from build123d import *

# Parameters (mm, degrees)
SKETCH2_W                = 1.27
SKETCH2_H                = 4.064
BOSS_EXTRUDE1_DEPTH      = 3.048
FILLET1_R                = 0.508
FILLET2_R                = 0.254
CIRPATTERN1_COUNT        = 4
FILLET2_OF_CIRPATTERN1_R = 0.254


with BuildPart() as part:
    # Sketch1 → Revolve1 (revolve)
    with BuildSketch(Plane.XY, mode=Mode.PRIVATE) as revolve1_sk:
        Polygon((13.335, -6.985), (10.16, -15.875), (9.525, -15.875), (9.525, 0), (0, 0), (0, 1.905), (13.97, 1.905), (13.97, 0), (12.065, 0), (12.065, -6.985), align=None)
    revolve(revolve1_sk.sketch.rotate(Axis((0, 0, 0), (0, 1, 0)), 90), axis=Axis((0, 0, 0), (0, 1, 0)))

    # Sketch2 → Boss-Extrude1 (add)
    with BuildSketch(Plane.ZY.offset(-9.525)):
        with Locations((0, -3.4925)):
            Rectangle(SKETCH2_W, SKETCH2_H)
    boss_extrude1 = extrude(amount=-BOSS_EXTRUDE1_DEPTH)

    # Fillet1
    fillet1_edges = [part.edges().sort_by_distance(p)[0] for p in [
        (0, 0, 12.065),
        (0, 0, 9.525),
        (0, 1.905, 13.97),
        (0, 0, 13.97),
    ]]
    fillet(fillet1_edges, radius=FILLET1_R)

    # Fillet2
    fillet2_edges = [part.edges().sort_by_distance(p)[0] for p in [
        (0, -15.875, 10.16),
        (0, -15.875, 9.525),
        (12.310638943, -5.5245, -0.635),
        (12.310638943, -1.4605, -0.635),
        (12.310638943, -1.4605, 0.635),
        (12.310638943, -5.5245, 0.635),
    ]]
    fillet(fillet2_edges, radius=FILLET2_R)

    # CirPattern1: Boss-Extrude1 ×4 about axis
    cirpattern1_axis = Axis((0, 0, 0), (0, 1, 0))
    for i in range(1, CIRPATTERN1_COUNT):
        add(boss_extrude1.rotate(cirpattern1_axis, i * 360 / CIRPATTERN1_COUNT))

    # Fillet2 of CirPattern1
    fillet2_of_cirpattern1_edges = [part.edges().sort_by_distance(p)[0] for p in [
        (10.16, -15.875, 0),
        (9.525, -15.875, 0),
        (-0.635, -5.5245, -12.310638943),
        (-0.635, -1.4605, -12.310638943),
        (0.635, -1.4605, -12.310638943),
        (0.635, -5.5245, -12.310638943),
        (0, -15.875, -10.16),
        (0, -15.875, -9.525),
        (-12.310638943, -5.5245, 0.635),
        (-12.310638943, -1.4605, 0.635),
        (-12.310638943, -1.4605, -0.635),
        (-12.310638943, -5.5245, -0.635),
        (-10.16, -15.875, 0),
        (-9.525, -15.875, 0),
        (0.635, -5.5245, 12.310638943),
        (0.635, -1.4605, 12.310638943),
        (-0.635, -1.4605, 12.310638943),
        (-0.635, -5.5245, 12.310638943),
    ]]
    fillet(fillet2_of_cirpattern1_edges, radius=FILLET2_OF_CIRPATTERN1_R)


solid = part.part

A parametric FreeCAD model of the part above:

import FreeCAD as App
import Part
import Sketcher

V = App.Vector
Q = App.Units.Quantity


def edges_at(feature, points):
    """Names of the edges that pass closest to the given points."""
    edges = feature.Shape.Edges
    near = lambda p: min(range(len(edges)), key=lambda i: edges[i].distToShape(Part.Vertex(*p))[0])
    return sorted({f"Edge{near(p) + 1}" for p in points})


def add_polygon(sketch, points):
    """Adds a closed chain of lines whose ends are joined by coincident constraints."""
    first, n = sketch.GeometryCount, len(points)
    for a, b in zip(points, points[1:] + points[:1]):
        sketch.addGeometry(Part.LineSegment(App.Vector(*a, 0), App.Vector(*b, 0)), False)
    for i in range(n):
        sketch.addConstraint(Sketcher.Constraint("Coincident", first + i, 2, first + (i + 1) % n, 1))

doc = App.newDocument("Part")
body = doc.addObject("PartDesign::Body", "Body")

sketch1 = doc.addObject("Sketcher::SketchObject", "Sketch")
body.addObject(sketch1)
sketch1.AttachmentSupport = (doc.XY_Plane, [""])
sketch1.MapMode = "FlatFace"
add_polygon(sketch1, [(10.2, -15.9), (13.3, -7), (12.1, -7), (12.1, 0), (14, 0), (14, 1.9), (0, 1.9), (0, 0), (9.5, 0), (9.5, -15.9)])
sketch1.addConstraint([
    Sketcher.Constraint("Horizontal", 1),
    Sketcher.Constraint("Vertical", 2),
    Sketcher.Constraint("Horizontal", 3),
    Sketcher.Constraint("Vertical", 4),
    Sketcher.Constraint("Horizontal", 5),
    Sketcher.Constraint("Vertical", 6),
    Sketcher.Constraint("Horizontal", 7),
    Sketcher.Constraint("Vertical", 8),
    Sketcher.Constraint("Horizontal", 9),
    Sketcher.Constraint("Coincident", 6, 2, -1, 1),
    Sketcher.Constraint("PointOnObject", 2, 2, -1),
    Sketcher.Constraint("Equal", 3, 4),
    Sketcher.Constraint("DistanceX", 1, 2, 1, 1, Q("0.05 in")),
    Sketcher.Constraint("DistanceX", 5, 2, 5, 1, Q("0.55 in")),
    Sketcher.Constraint("DistanceX", -1, 1, 9, 2, Q("0.4 in")),
    Sketcher.Constraint("DistanceX", 7, 2, 2, 2, Q("0.1 in")),
    Sketcher.Constraint("DistanceX", 3, 1, 3, 2, Q("0.075 in")),
    Sketcher.Constraint("DistanceY", 2, 1, 2, 2, Q("0.275 in")),
    Sketcher.Constraint("DistanceY", 8, 2, 8, 1, Q("0.625 in")),
])
revolution = doc.addObject("PartDesign::Revolution", "Revolution")
body.addObject(revolution)
revolution.Profile = sketch1
revolution.ReferenceAxis = (sketch1, ["V_Axis"])
revolution.Angle = 360

sketch2 = doc.addObject("Sketcher::SketchObject", "Sketch001")
body.addObject(sketch2)
sketch2.AttachmentSupport = (doc.YZ_Plane, [""])
sketch2.MapMode = "FlatFace"
sketch2.AttachmentOffset = App.Placement(V(0, 0, 0.375 * 25.4), App.Rotation())
add_polygon(sketch2, [(-1.5, -0.6), (-5.5, -0.6), (-5.5, 0.6), (-1.5, 0.6)])
sketch2.addConstraint([
    Sketcher.Constraint("Horizontal", 0),
    Sketcher.Constraint("Vertical", 1),
    Sketcher.Constraint("Horizontal", 2),
    Sketcher.Constraint("Vertical", 3),
    Sketcher.Constraint("DistanceX", 0, 2, 0, 1, Q("0.16 in")),
    Sketcher.Constraint("DistanceY", 1, 1, 1, 2, Q("0.05 in")),
    Sketcher.Constraint("DistanceY", 0, 2, -1, 1, Q("0.025 in")),
    Sketcher.Constraint("DistanceX", 0, 2, -1, 1, Q("0.2175 in")),
])
pad1 = doc.addObject("PartDesign::Pad", "Pad")
body.addObject(pad1)
pad1.Profile = sketch2
pad1.Length = Q("0.12 in")
doc.recompute()

fillet = doc.addObject("PartDesign::Fillet", "Fillet")
body.addObject(fillet)
fillet.Base = (pad1, edges_at(pad1, [
    (0, 0, 12.065),
    (0, 0, 9.525),
    (0, 1.905, 13.97),
    (0, 0, 13.97),
]))
fillet.Radius = Q("0.02 in")
doc.recompute()

fillet2 = doc.addObject("PartDesign::Fillet", "Fillet001")
body.addObject(fillet2)
fillet2.Base = (fillet, edges_at(fillet, [
    (0, -15.875, 10.16),
    (0, -15.875, 9.525),
    (12.311, -5.524, -0.635),
    (12.311, -1.46, -0.635),
    (12.311, -1.46, 0.635),
    (12.311, -5.524, 0.635),
]))
fillet2.Radius = Q("0.01 in")
doc.recompute()

polarpattern = doc.addObject("PartDesign::PolarPattern", "PolarPattern")
body.addObject(polarpattern)
polarpattern.Originals = [pad1]
polarpattern.Axis = (doc.Y_Axis, [""])
polarpattern.Angle = 360
polarpattern.Occurrences = 4
body.Tip = polarpattern
doc.recompute()

fillet3 = doc.addObject("PartDesign::Fillet", "Fillet002")
body.addObject(fillet3)
fillet3.Base = (polarpattern, edges_at(polarpattern, [
    (0, -15.706, 10.22),
    (0, -15.875, 9.779),
    (-0.635, -5.524, -12.311),
    (-0.635, -1.46, -12.311),
    (0.635, -1.46, -12.311),
    (0.635, -5.524, -12.311),
    (0, -15.829, -10.127),
    (0, -15.801, -9.599),
    (-12.311, -5.524, 0.635),
    (-12.311, -1.46, 0.635),
    (-12.311, -1.46, -0.635),
    (-12.311, -5.524, -0.635),
    (0, -15.706, 10.22),
    (0, -15.875, 9.779),
    (0.635, -5.524, 12.311),
    (0.635, -1.46, 12.311),
    (-0.635, -1.46, 12.311),
    (-0.635, -5.524, 12.311),
]))
fillet3.Radius = Q("0.01 in")

doc.recompute()
